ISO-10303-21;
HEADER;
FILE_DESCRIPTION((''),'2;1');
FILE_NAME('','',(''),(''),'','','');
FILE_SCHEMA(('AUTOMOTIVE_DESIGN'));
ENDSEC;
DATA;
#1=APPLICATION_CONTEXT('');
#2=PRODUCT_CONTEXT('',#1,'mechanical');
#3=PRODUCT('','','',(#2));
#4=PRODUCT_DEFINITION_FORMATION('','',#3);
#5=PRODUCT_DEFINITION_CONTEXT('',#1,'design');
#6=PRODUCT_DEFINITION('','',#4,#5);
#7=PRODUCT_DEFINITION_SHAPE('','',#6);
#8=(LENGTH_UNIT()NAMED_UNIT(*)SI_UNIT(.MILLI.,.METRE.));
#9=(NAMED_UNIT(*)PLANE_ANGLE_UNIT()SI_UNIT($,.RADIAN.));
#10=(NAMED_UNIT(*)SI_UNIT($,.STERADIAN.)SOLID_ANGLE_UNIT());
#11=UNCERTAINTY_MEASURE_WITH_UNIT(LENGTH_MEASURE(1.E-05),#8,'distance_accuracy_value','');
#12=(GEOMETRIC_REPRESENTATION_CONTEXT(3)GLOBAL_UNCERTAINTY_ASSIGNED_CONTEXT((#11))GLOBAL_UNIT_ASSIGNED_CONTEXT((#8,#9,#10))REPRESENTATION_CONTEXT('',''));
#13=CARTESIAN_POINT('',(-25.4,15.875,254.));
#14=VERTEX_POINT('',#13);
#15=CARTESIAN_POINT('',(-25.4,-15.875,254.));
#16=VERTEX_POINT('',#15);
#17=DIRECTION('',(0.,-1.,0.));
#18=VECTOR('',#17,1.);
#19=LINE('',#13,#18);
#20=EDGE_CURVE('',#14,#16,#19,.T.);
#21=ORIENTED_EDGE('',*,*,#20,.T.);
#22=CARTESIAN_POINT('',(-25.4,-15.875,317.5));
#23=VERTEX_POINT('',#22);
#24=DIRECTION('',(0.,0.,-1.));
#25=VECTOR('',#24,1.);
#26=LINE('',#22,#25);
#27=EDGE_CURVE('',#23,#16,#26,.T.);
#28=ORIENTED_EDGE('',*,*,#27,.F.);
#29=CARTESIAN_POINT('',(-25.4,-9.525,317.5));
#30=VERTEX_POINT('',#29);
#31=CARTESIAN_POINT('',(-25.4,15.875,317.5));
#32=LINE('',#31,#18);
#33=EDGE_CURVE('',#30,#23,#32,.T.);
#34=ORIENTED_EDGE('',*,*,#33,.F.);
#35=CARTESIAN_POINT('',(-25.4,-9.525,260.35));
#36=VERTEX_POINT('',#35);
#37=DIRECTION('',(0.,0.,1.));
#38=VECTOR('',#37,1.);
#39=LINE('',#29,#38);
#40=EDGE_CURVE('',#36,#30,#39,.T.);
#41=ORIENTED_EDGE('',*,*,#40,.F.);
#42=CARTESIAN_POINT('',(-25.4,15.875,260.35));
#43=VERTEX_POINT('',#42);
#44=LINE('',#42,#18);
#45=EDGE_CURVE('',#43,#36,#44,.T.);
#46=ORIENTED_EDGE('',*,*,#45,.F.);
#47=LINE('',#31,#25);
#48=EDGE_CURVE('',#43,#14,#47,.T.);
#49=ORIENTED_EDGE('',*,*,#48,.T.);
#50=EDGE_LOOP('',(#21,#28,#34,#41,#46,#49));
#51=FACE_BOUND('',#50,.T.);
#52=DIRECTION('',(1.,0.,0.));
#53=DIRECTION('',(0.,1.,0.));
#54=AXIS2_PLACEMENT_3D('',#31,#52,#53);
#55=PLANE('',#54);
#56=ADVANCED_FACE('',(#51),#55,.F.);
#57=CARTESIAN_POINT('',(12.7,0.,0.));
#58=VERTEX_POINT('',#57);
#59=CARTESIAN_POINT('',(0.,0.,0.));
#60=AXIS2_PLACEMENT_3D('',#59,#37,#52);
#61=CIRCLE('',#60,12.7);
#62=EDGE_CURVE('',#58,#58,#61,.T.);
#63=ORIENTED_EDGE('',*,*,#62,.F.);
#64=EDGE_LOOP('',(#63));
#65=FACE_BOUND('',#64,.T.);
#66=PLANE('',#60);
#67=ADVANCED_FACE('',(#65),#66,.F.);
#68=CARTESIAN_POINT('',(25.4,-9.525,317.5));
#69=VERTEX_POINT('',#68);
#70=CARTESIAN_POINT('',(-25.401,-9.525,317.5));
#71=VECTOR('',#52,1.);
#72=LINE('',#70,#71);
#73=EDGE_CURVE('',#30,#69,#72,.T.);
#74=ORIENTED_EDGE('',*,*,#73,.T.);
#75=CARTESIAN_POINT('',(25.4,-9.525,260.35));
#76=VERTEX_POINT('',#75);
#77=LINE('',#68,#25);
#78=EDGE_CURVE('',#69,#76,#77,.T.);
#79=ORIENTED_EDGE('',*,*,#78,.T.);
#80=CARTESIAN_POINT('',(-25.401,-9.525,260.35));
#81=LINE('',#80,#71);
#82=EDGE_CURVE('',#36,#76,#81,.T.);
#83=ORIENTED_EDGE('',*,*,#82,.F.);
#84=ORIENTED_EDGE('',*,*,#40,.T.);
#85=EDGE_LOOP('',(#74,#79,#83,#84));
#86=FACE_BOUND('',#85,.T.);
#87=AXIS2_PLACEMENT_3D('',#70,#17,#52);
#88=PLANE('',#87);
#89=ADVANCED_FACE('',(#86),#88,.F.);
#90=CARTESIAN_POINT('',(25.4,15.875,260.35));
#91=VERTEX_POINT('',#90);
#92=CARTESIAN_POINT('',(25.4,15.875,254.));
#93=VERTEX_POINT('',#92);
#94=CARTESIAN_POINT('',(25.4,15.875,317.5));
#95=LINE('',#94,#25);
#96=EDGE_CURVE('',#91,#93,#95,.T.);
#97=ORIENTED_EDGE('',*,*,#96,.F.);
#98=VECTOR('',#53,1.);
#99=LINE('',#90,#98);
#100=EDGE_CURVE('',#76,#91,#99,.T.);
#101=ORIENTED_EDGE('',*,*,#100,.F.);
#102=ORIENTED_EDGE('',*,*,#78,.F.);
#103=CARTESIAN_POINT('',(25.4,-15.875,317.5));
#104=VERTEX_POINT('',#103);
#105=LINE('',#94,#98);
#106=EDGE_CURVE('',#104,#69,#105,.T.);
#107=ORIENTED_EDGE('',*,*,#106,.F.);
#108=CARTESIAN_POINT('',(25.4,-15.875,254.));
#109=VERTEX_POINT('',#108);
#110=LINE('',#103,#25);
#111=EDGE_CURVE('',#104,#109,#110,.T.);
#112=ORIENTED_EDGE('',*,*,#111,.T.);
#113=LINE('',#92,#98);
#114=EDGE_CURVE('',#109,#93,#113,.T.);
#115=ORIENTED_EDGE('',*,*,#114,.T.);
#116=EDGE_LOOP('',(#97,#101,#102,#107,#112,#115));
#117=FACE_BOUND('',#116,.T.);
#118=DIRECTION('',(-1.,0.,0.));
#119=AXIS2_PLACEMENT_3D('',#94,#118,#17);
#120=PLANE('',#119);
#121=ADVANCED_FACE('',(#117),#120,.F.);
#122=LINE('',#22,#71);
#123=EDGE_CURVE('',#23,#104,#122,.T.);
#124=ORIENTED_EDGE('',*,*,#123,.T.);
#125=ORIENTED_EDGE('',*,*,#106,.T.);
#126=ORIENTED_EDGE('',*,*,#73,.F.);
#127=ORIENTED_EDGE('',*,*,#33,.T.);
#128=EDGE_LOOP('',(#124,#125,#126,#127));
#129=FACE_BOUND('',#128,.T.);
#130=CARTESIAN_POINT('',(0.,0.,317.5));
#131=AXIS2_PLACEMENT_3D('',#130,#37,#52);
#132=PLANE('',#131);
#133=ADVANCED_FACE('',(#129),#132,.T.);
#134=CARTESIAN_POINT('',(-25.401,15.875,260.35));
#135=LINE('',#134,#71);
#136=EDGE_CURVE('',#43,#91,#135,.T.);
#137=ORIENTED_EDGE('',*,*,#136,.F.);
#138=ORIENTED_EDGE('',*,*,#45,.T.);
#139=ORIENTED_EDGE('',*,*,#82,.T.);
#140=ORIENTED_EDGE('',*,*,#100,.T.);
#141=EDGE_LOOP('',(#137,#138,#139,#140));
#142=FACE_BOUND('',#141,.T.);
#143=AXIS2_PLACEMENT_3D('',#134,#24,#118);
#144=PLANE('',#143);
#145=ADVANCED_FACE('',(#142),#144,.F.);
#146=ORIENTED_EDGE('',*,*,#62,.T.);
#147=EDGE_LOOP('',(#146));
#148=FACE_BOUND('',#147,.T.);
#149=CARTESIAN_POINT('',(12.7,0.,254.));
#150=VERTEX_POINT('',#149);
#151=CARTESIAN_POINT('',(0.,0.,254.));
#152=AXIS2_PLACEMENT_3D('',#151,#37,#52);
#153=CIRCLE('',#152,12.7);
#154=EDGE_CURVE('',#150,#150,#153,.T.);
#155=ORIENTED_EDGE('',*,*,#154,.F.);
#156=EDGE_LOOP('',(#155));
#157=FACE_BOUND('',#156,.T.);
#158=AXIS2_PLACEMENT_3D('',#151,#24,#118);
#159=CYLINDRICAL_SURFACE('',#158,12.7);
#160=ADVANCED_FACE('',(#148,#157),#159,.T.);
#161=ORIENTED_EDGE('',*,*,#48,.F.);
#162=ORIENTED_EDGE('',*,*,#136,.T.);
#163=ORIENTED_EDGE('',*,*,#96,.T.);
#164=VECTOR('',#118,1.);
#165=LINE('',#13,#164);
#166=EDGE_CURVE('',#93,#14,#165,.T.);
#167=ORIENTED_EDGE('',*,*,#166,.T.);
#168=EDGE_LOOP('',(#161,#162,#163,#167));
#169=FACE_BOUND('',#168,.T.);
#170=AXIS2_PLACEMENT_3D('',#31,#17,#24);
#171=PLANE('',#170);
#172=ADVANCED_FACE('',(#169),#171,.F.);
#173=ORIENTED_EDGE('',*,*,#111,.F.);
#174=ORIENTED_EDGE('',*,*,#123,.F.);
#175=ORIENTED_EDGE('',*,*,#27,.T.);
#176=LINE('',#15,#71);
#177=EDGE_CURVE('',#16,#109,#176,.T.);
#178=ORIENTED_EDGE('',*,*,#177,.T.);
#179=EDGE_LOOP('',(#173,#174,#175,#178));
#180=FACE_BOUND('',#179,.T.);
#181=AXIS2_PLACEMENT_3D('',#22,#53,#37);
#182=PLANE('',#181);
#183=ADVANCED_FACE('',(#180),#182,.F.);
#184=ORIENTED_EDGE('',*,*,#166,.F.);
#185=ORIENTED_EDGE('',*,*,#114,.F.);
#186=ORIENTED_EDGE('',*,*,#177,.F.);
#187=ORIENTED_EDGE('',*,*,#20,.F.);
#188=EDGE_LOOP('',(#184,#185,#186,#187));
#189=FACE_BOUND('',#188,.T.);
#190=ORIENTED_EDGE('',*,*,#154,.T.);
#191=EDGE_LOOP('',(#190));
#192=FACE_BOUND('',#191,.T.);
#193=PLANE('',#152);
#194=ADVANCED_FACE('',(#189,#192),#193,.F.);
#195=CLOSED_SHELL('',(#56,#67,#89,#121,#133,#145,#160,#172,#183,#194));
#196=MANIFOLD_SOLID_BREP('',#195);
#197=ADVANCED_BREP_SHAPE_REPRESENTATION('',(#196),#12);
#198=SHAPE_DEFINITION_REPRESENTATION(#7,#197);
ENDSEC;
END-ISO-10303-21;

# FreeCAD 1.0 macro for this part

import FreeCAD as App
import Part
import Sketcher
Q = App.Units.Quantity

doc = App.newDocument("Part")
body = doc.addObject("PartDesign::Body", "Body")

# Sketch on XY plane
sketch1 = body.newObject("Sketcher::SketchObject", "Sketch")
sketch1.AttachmentSupport = (doc.getObject("XY_Plane"), [""])
sketch1.MapMode = "FlatFace"
sketch1.addGeometry(Part.Circle(App.Vector(0, 0, 0), App.Vector(0, 0, 1), 12.7), False)
sketch1.addConstraint([
    Sketcher.Constraint("Coincident", 0, 3, -1, 1),
    Sketcher.Constraint("Diameter", 0, Q("1 in")),
])
pad1 = body.newObject("PartDesign::Pad", "Pad")
pad1.Profile = sketch1
pad1.Length = Q("10 in")

# Sketch on XY plane
sketch2 = body.newObject("Sketcher::SketchObject", "Sketch001")
sketch2.AttachmentSupport = (doc.getObject("XY_Plane"), [""])
sketch2.MapMode = "FlatFace"
sketch2.AttachmentOffset = App.Placement(App.Vector(0, 0, 10 * 25.4), App.Rotation())
sketch2.addGeometry([
    Part.LineSegment(App.Vector(-25.4, 15.875, 0), App.Vector(-25.4, -15.875, 0)),
    Part.LineSegment(App.Vector(-25.4, -15.875, 0), App.Vector(25.4, -15.875, 0)),
    Part.LineSegment(App.Vector(25.4, -15.875, 0), App.Vector(25.4, 15.875, 0)),
    Part.LineSegment(App.Vector(25.4, 15.875, 0), App.Vector(-25.4, 15.875, 0)),
], False)
sketch2.addConstraint([
    Sketcher.Constraint("Coincident", 0, 2, 1, 1),
    Sketcher.Constraint("Coincident", 1, 2, 2, 1),
    Sketcher.Constraint("Coincident", 2, 2, 3, 1),
    Sketcher.Constraint("Coincident", 3, 2, 0, 1),
    Sketcher.Constraint("Vertical", 0),
    Sketcher.Constraint("Horizontal", 1),
    Sketcher.Constraint("Vertical", 2),
    Sketcher.Constraint("Horizontal", 3),
    Sketcher.Constraint("Symmetric", 0, 2, 2, 2, -1, 1),
    Sketcher.Constraint("DistanceX", 1, 1, 1, 2, Q("2 in")),
    Sketcher.Constraint("DistanceY", 0, 2, 0, 1, Q("1.25 in")),
])
pad2 = body.newObject("PartDesign::Pad", "Pad001")
pad2.Profile = sketch2
pad2.Length = Q("2.5 in")

# Sketch on YZ plane
sketch3 = body.newObject("Sketcher::SketchObject", "Sketch002")
sketch3.AttachmentSupport = (doc.getObject("YZ_Plane"), [""])
sketch3.MapMode = "FlatFace"
sketch3.AttachmentOffset = App.Placement(App.Vector(0, 0, 1 * 25.4), App.Rotation())
sketch3.addGeometry([
    Part.LineSegment(App.Vector(15.875, 317.5, 0), App.Vector(-9.525, 317.5, 0)),
    Part.LineSegment(App.Vector(-9.525, 317.5, 0), App.Vector(-9.525, 260.35, 0)),
    Part.LineSegment(App.Vector(-9.525, 260.35, 0), App.Vector(15.875, 260.35, 0)),
    Part.LineSegment(App.Vector(15.875, 260.35, 0), App.Vector(15.875, 317.5, 0)),
], False)
sketch3.addConstraint([
    Sketcher.Constraint("Coincident", 0, 2, 1, 1),
    Sketcher.Constraint("Coincident", 1, 2, 2, 1),
    Sketcher.Constraint("Coincident", 2, 2, 3, 1),
    Sketcher.Constraint("Coincident", 3, 2, 0, 1),
    Sketcher.Constraint("Horizontal", 0),
    Sketcher.Constraint("Vertical", 1),
    Sketcher.Constraint("Horizontal", 2),
    Sketcher.Constraint("Vertical", 3),
    Sketcher.Constraint("DistanceX", 0, 2, 0, 1, Q("1 in")),
    Sketcher.Constraint("DistanceY", 1, 2, 1, 1, Q("2.25 in")),
    Sketcher.Constraint("DistanceY", -1, 1, 0, 2, Q("12.5 in")),
    Sketcher.Constraint("DistanceX", 0, 2, -1, 1, Q("0.375 in")),
])
pocket1 = body.newObject("PartDesign::Pocket", "Pocket")
pocket1.Profile = sketch3
pocket1.Type = "UpToFirst"

doc.recompute()
